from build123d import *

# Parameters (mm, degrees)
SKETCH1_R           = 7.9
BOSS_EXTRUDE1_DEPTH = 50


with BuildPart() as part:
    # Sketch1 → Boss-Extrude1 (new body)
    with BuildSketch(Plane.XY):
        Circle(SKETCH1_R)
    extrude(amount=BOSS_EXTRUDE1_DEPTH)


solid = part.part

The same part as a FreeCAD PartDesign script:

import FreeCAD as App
import Part
import Sketcher
from FreeCAD import Vector

doc = App.newDocument("Part")
body = doc.addObject("PartDesign::Body", "Body")

# Sketch on XY plane
sketch1 = body.newObject("Sketcher::SketchObject", "Sketch")
sketch1.AttachmentSupport = (doc.getObject("XY_Plane"), [""])
sketch1.MapMode = "FlatFace"
sketch1.addGeometry(Part.Circle(Vector(0, 0, 0), Vector(0, 0, 1), 8), False)
sketch1.addConstraint([
    Sketcher.Constraint("Coincident", 0, 3, -1, 1),
    Sketcher.Constraint("Diameter", 0, 15.8),
])
pad1 = body.newObject("PartDesign::Pad", "Pad")
pad1.Profile = sketch1
pad1.Length = 50

doc.recompute()
